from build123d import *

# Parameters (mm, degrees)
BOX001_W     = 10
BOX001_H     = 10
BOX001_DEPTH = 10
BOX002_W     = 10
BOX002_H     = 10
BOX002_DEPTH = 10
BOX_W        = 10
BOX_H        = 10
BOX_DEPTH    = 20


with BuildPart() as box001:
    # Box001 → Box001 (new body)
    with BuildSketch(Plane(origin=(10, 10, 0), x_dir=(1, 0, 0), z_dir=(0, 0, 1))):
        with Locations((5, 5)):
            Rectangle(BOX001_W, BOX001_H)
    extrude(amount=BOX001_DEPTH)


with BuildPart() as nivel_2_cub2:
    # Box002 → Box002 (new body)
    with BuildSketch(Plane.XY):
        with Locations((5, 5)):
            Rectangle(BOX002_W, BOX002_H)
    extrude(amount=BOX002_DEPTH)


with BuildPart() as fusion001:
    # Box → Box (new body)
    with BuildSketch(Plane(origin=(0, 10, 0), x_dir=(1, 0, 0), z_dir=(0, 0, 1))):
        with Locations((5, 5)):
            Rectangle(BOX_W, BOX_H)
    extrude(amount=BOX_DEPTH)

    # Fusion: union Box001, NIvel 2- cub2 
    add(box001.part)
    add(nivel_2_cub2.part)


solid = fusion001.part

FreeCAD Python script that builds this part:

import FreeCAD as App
import Part
import Sketcher
Q = App.Units.Quantity


def add_polygon(sketch, points):
    """Adds a closed chain of lines whose ends are joined by coincident constraints."""
    first, n = sketch.GeometryCount, len(points)
    for a, b in zip(points, points[1:] + points[:1]):
        sketch.addGeometry(Part.LineSegment(App.Vector(*a, 0), App.Vector(*b, 0)), False)
    for i in range(n):
        sketch.addConstraint(Sketcher.Constraint("Coincident", first + i, 2, first + (i + 1) % n, 1))

doc = App.newDocument("Part")
body = doc.addObject("PartDesign::Body", "Body")

sketch1 = doc.addObject("Sketcher::SketchObject", "Sketch")
body.addObject(sketch1)
sketch1.AttachmentSupport = (doc.XY_Plane, [""])
sketch1.MapMode = "FlatFace"
add_polygon(sketch1, [(10, 20), (10, 10), (20, 10), (20, 20)])
sketch1.addConstraint(Sketcher.Constraint("Vertical", 0))
sketch1.addConstraint(Sketcher.Constraint("Horizontal", 1))
sketch1.addConstraint(Sketcher.Constraint("Vertical", 2))
sketch1.addConstraint(Sketcher.Constraint("Horizontal", 3))
sketch1.addConstraint(Sketcher.Constraint("Equal", 3, 0))
sketch1.addConstraint(Sketcher.Constraint("DistanceX", 1, 1, 1, 2, Q("10 mm")))
sketch1.addConstraint(Sketcher.Constraint("DistanceX", -1, 1, 0, 2, Q("10 mm")))
sketch1.addConstraint(Sketcher.Constraint("DistanceY", -1, 1, 0, 2, Q("10 mm")))
pad1 = doc.addObject("PartDesign::Pad", "Pad")
body.addObject(pad1)
pad1.Profile = sketch1
pad1.Length = 10
body2 = doc.addObject("PartDesign::Body", "Body001")

sketch2 = doc.addObject("Sketcher::SketchObject", "Sketch001")
body2.addObject(sketch2)
sketch2.AttachmentSupport = (doc.getObject("XY_Plane001"), [""])
sketch2.MapMode = "FlatFace"
add_polygon(sketch2, [(0, 10), (0, 0), (10, 0), (10, 10)])
sketch2.addConstraint(Sketcher.Constraint("Vertical", 0))
sketch2.addConstraint(Sketcher.Constraint("Horizontal", 1))
sketch2.addConstraint(Sketcher.Constraint("Vertical", 2))
sketch2.addConstraint(Sketcher.Constraint("Horizontal", 3))
sketch2.addConstraint(Sketcher.Constraint("Coincident", 0, 2, -1, 1))
sketch2.addConstraint(Sketcher.Constraint("Equal", 3, 0))
sketch2.addConstraint(Sketcher.Constraint("DistanceX", 1, 1, 1, 2, Q("10 mm")))
pad2 = doc.addObject("PartDesign::Pad", "Pad001")
body2.addObject(pad2)
pad2.Profile = sketch2
pad2.Length = 10
body3 = doc.addObject("PartDesign::Body", "Body002")

sketch3 = doc.addObject("Sketcher::SketchObject", "Sketch002")
body3.addObject(sketch3)
sketch3.AttachmentSupport = (doc.getObject("XY_Plane002"), [""])
sketch3.MapMode = "FlatFace"
add_polygon(sketch3, [(0, 20), (0, 10), (10, 10), (10, 20)])
sketch3.addConstraint(Sketcher.Constraint("Vertical", 0))
sketch3.addConstraint(Sketcher.Constraint("Horizontal", 1))
sketch3.addConstraint(Sketcher.Constraint("Vertical", 2))
sketch3.addConstraint(Sketcher.Constraint("Horizontal", 3))
sketch3.addConstraint(Sketcher.Constraint("PointOnObject", 0, 2, -2))
sketch3.addConstraint(Sketcher.Constraint("Equal", 3, 0))
sketch3.addConstraint(Sketcher.Constraint("DistanceX", 1, 1, 1, 2, Q("10 mm")))
sketch3.addConstraint(Sketcher.Constraint("DistanceY", -1, 1, 0, 2, Q("10 mm")))
pad3 = doc.addObject("PartDesign::Pad", "Pad002")
body3.addObject(pad3)
pad3.Profile = sketch3
pad3.Length = 20
doc.recompute()

boolean = doc.addObject("PartDesign::Boolean", "Boolean")
body3.addObject(boolean)
boolean.Type = "Fuse"
boolean.addObjects([body])
doc.recompute()

boolean2 = doc.addObject("PartDesign::Boolean", "Boolean001")
body3.addObject(boolean2)
boolean2.Type = "Fuse"
boolean2.addObjects([body2])

doc.recompute()
